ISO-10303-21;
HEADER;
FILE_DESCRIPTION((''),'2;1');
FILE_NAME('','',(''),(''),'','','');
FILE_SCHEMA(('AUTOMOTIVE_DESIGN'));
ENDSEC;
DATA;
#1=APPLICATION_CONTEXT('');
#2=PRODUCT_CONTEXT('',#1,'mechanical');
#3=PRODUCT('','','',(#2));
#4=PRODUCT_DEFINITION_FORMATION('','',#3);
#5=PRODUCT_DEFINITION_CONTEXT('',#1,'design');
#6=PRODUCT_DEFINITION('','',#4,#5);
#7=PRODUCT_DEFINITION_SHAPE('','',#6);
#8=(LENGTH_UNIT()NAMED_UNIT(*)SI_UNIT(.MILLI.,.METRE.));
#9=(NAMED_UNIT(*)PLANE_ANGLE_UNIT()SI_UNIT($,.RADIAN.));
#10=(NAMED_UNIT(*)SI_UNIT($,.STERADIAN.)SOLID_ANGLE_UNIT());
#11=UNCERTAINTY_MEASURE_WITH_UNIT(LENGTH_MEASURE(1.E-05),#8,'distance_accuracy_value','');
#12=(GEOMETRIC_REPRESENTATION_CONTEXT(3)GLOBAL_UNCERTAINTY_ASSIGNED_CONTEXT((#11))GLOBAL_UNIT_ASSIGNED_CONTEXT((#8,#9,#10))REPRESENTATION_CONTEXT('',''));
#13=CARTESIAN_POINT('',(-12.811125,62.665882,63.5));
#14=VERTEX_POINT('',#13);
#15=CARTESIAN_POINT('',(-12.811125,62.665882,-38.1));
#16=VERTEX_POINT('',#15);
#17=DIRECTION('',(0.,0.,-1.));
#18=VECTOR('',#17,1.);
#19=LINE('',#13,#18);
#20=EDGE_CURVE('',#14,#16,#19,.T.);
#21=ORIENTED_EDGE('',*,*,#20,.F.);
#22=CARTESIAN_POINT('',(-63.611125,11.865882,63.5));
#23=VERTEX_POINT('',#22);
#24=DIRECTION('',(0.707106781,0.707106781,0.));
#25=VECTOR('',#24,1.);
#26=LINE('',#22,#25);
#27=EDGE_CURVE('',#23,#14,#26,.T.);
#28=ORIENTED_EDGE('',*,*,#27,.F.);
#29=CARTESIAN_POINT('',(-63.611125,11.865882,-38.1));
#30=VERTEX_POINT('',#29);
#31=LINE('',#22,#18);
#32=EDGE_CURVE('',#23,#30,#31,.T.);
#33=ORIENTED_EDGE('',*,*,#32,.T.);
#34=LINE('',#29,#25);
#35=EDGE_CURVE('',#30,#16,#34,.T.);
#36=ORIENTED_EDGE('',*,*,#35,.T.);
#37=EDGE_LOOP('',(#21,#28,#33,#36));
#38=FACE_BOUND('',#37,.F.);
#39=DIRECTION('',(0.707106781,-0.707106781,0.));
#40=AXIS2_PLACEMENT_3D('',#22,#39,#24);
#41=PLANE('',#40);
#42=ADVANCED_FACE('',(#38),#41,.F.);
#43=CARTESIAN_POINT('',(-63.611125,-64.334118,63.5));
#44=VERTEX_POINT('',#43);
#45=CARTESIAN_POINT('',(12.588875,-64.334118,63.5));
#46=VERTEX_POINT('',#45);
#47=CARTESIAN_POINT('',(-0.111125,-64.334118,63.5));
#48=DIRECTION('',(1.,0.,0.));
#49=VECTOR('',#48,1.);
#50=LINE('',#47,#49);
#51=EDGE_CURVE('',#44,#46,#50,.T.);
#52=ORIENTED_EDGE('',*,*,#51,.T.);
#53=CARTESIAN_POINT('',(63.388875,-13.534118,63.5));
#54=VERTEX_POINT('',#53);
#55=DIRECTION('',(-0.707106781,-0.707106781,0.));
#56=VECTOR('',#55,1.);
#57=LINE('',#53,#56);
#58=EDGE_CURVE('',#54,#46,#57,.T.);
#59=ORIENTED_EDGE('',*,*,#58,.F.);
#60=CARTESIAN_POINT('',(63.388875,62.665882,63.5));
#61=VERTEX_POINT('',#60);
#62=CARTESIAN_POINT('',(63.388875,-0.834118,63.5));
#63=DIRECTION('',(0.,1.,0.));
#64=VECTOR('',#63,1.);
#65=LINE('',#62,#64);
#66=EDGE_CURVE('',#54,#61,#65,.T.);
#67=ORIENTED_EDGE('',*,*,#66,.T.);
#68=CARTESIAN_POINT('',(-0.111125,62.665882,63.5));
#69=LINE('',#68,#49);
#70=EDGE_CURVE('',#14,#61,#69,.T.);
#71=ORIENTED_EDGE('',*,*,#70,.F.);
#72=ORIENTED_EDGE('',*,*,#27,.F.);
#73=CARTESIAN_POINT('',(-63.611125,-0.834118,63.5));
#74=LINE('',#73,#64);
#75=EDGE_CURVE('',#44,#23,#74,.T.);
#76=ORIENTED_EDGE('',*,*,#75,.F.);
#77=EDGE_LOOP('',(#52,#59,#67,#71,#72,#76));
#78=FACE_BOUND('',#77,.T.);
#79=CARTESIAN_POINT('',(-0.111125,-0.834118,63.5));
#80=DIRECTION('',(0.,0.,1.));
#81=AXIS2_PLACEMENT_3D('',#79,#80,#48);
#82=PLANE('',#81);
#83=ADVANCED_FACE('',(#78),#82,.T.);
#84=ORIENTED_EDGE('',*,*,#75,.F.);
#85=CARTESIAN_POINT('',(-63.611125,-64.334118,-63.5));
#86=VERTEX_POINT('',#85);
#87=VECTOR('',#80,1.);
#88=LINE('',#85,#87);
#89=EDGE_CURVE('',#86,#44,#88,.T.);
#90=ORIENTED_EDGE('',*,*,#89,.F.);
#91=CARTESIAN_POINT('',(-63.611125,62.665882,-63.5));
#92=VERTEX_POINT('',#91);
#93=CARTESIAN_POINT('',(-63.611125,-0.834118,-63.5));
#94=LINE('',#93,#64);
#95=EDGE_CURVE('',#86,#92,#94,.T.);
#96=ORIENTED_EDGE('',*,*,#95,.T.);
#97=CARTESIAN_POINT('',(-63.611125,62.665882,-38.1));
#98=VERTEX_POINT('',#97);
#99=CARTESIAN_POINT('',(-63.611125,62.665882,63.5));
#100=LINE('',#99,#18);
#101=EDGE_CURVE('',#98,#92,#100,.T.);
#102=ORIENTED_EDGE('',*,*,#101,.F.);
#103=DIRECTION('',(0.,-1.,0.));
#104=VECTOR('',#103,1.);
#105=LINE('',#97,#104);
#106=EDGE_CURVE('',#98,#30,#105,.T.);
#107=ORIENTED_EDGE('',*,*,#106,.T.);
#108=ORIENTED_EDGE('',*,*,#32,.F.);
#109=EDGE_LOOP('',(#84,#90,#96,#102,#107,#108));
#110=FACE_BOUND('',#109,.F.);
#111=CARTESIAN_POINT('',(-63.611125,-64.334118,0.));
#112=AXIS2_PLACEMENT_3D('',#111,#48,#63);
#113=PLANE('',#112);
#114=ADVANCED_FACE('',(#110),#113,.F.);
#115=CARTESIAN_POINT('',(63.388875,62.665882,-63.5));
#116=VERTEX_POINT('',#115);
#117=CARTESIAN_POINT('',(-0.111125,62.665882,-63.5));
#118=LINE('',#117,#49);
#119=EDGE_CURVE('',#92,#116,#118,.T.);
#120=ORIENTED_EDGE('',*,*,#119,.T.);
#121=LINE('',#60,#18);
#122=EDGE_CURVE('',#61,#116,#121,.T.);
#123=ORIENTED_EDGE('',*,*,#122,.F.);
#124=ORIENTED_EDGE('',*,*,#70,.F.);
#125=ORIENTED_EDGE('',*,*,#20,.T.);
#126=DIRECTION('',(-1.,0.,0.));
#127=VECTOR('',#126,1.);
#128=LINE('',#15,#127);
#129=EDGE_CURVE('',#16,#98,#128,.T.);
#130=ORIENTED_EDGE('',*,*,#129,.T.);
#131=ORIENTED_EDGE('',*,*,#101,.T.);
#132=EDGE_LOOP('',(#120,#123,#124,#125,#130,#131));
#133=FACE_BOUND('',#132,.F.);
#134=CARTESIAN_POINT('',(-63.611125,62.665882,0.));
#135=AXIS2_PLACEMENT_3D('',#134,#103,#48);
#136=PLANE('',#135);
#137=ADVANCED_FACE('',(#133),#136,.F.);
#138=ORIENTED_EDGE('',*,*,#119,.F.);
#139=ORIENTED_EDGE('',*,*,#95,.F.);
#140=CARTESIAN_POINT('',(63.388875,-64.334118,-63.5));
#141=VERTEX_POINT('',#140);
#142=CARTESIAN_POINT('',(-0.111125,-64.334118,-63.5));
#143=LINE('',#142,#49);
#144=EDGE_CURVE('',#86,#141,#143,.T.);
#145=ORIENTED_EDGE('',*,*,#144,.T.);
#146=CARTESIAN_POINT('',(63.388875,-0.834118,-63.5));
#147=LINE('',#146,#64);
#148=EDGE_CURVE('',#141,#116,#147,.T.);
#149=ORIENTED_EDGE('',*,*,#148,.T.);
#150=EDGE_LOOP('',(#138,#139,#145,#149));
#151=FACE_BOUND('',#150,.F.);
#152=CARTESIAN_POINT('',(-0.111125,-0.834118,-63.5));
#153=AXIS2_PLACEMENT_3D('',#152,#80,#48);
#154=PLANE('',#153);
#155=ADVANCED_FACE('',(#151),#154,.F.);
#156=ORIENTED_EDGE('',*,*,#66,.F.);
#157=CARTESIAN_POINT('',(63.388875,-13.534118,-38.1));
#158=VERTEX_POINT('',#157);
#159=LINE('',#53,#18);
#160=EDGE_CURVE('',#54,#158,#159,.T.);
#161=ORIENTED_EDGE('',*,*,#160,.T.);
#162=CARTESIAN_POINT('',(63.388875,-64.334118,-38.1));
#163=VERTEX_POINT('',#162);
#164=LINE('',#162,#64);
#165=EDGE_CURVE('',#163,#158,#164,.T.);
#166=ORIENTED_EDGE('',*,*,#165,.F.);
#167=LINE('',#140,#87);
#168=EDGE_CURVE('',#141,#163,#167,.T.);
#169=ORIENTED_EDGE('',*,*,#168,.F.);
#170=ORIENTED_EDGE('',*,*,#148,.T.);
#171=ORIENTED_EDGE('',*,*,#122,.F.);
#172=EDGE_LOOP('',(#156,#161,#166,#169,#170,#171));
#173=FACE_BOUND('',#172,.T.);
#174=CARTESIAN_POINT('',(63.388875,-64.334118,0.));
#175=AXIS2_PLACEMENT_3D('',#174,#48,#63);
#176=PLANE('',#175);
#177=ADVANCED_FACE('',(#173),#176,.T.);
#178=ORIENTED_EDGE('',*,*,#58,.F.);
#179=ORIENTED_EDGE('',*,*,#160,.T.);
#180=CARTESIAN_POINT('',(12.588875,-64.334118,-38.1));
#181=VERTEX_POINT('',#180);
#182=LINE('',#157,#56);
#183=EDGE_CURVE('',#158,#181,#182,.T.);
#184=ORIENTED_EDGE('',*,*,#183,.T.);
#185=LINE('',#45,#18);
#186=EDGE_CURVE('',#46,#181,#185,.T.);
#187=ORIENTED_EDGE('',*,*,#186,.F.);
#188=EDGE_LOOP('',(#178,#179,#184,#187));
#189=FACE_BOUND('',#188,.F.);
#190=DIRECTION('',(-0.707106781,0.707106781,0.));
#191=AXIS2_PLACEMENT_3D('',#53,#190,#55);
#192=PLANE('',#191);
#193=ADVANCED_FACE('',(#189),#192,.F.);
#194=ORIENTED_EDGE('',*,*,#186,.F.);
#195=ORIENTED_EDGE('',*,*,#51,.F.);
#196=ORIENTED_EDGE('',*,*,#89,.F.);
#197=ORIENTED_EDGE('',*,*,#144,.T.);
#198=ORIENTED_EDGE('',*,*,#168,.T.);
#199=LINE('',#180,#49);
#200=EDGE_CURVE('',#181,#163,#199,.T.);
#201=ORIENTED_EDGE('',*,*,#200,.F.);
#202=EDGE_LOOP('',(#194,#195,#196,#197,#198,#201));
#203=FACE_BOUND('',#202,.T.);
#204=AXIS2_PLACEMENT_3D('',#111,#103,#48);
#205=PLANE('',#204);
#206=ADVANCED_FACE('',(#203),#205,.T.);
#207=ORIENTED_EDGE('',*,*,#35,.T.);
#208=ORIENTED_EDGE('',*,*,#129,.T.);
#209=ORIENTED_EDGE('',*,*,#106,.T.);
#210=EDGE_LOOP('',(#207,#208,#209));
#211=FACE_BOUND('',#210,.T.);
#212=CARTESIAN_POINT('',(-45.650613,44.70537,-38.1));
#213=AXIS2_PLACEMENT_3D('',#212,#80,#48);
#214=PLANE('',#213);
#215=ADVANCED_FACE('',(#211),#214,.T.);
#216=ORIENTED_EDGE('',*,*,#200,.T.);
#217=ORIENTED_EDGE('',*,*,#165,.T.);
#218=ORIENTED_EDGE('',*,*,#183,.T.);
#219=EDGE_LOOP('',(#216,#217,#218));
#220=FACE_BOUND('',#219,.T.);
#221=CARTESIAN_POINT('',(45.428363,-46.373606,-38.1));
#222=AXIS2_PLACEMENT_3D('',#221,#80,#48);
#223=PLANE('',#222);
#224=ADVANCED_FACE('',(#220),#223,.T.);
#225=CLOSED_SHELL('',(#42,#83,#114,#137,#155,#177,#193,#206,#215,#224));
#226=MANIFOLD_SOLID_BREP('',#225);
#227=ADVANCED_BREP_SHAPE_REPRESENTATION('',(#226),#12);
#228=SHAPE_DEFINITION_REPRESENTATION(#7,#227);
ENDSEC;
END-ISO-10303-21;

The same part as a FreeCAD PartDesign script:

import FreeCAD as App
import Part
import Sketcher
from FreeCAD import Vector
Q = App.Units.Quantity

doc = App.newDocument("Part")
body = doc.addObject("PartDesign::Body", "Body")

# Sketch on XY plane
sketch1 = body.newObject("Sketcher::SketchObject", "Sketch")
sketch1.AttachmentSupport = (doc.getObject("XY_Plane"), [""])
sketch1.MapMode = "FlatFace"
sketch1.addGeometry(Part.LineSegment(Vector(-64, 63, 0), Vector(-64, -64, 0)), False)
sketch1.addGeometry(Part.LineSegment(Vector(-64, -64, 0), Vector(63, -64, 0)), False)
sketch1.addGeometry(Part.LineSegment(Vector(63, -64, 0), Vector(63, 63, 0)), False)
sketch1.addGeometry(Part.LineSegment(Vector(63, 63, 0), Vector(-64, 63, 0)), False)
sketch1.addConstraint(Sketcher.Constraint("Coincident", 0, 2, 1, 1))
sketch1.addConstraint(Sketcher.Constraint("Coincident", 1, 2, 2, 1))
sketch1.addConstraint(Sketcher.Constraint("Coincident", 2, 2, 3, 1))
sketch1.addConstraint(Sketcher.Constraint("Coincident", 3, 2, 0, 1))
sketch1.addConstraint(Sketcher.Constraint("Vertical", 0))
sketch1.addConstraint(Sketcher.Constraint("Horizontal", 1))
sketch1.addConstraint(Sketcher.Constraint("Vertical", 2))
sketch1.addConstraint(Sketcher.Constraint("Horizontal", 3))
sketch1.addConstraint(Sketcher.Constraint("Equal", 3, 0))
sketch1.addConstraint(Sketcher.Constraint("DistanceX", 1, 1, 1, 2, Q("5 in")))
sketch1.addConstraint(Sketcher.Constraint("DistanceY", 0, 2, -1, 1, Q("64.334118 mm")))
sketch1.addConstraint(Sketcher.Constraint("DistanceX", 0, 2, -1, 1, Q("63.611125 mm")))
pad1 = body.newObject("PartDesign::Pad", "Pad")
pad1.Profile = sketch1
pad1.Length = Q("5 in")
pad1.Midplane = True

# Sketch on XY plane
sketch2 = body.newObject("Sketcher::SketchObject", "Sketch001")
sketch2.AttachmentSupport = (doc.getObject("XY_Plane"), [""])
sketch2.MapMode = "FlatFace"
sketch2.AttachmentOffset = App.Placement(Vector(0, 0, 2.5 * 25.4), App.Rotation())
sketch2.addGeometry(Part.LineSegment(Vector(63, -64, 0), Vector(63, -14, 0)), False)
sketch2.addGeometry(Part.LineSegment(Vector(63, -14, 0), Vector(13, -64, 0)), False)
sketch2.addGeometry(Part.LineSegment(Vector(13, -64, 0), Vector(63, -64, 0)), False)
sketch2.addGeometry(Part.LineSegment(Vector(-13, 63, 0), Vector(-64, 63, 0)), False)
sketch2.addGeometry(Part.LineSegment(Vector(-64, 63, 0), Vector(-64, 12, 0)), False)
sketch2.addGeometry(Part.LineSegment(Vector(-64, 12, 0), Vector(-13, 63, 0)), False)
sketch2.addConstraint(Sketcher.Constraint("Coincident", 0, 2, 1, 1))
sketch2.addConstraint(Sketcher.Constraint("Coincident", 1, 2, 2, 1))
sketch2.addConstraint(Sketcher.Constraint("Coincident", 2, 2, 0, 1))
sketch2.addConstraint(Sketcher.Constraint("Coincident", 3, 2, 4, 1))
sketch2.addConstraint(Sketcher.Constraint("Coincident", 4, 2, 5, 1))
sketch2.addConstraint(Sketcher.Constraint("Coincident", 5, 2, 3, 1))
sketch2.addConstraint(Sketcher.Constraint("Vertical", 0))
sketch2.addConstraint(Sketcher.Constraint("Horizontal", 2))
sketch2.addConstraint(Sketcher.Constraint("Horizontal", 3))
sketch2.addConstraint(Sketcher.Constraint("Vertical", 4))
sketch2.addConstraint(Sketcher.Constraint("Parallel", 1, 5))
sketch2.addConstraint(Sketcher.Constraint("Equal", 2, 3))
sketch2.addConstraint(Sketcher.Constraint("Equal", 3, 0))
sketch2.addConstraint(Sketcher.Constraint("DistanceX", 2, 1, 2, 2, Q("2 in")))
sketch2.addConstraint(Sketcher.Constraint("DistanceX", 3, 2, 0, 2, Q("5 in")))
sketch2.addConstraint(Sketcher.Constraint("DistanceY", 0, 2, 3, 2, Q("3 in")))
sketch2.addConstraint(Sketcher.Constraint("DistanceY", 1, 2, -1, 1, Q("64.334118 mm")))
sketch2.addConstraint(Sketcher.Constraint("DistanceX", -1, 1, 0, 2, Q("63.388875 mm")))
pocket1 = body.newObject("PartDesign::Pocket", "Pocket")
pocket1.Profile = sketch2
pocket1.Length = Q("4 in")

doc.recompute()
